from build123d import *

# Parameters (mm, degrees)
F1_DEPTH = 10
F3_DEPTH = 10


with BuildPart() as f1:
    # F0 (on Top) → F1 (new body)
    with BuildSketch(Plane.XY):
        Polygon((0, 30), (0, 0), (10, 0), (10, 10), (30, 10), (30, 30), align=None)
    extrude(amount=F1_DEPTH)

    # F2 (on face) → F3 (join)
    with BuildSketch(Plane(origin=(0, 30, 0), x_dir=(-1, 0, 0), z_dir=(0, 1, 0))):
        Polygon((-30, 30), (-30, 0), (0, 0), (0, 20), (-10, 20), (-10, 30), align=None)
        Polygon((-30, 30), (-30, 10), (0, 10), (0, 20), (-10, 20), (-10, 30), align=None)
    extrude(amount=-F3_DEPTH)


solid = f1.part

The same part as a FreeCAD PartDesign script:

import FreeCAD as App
import Part
import Sketcher
from FreeCAD import Vector
Q = App.Units.Quantity

doc = App.newDocument("Part")
body = doc.addObject("PartDesign::Body", "Body")

# Sketch on XY plane
sketch1 = body.newObject("Sketcher::SketchObject", "Sketch")
sketch1.AttachmentSupport = (doc.getObject("XY_Plane"), [""])
sketch1.MapMode = "FlatFace"
sketch1.addGeometry([
    Part.LineSegment(Vector(0, 30, 0), Vector(0, 0, 0)),  # 0
    Part.LineSegment(Vector(0, 0, 0), Vector(10, 0, 0)),  # 1
    Part.LineSegment(Vector(10, 0, 0), Vector(10, 10, 0)),  # 2
    Part.LineSegment(Vector(10, 10, 0), Vector(30, 10, 0)),  # 3
    Part.LineSegment(Vector(30, 10, 0), Vector(30, 30, 0)),  # 4
    Part.LineSegment(Vector(30, 30, 0), Vector(0, 30, 0)),  # 5
], False)
sketch1.addConstraint([
    Sketcher.Constraint("Coincident", 0, 2, 1, 1),
    Sketcher.Constraint("Coincident", 1, 2, 2, 1),
    Sketcher.Constraint("Coincident", 2, 2, 3, 1),
    Sketcher.Constraint("Coincident", 3, 2, 4, 1),
    Sketcher.Constraint("Coincident", 4, 2, 5, 1),
    Sketcher.Constraint("Coincident", 5, 2, 0, 1),
    Sketcher.Constraint("Vertical", 0),
    Sketcher.Constraint("Horizontal", 1),
    Sketcher.Constraint("Vertical", 2),
    Sketcher.Constraint("Horizontal", 3),
    Sketcher.Constraint("Vertical", 4),
    Sketcher.Constraint("Horizontal", 5),
    Sketcher.Constraint("Coincident", 0, 2, -1, 1),
    Sketcher.Constraint("Equal", 5, 0),
    Sketcher.Constraint("Equal", 1, 2),
    Sketcher.Constraint("DistanceX", 1, 1, 1, 2, Q("10 mm")),
    Sketcher.Constraint("DistanceX", 3, 1, 3, 2, Q("20 mm")),
])
pad1 = body.newObject("PartDesign::Pad", "Pad")
pad1.Profile = sketch1
pad1.Length = 10

# Sketch on XZ plane
sketch2 = body.newObject("Sketcher::SketchObject", "Sketch001")
sketch2.AttachmentSupport = (doc.getObject("XZ_Plane"), [""])
sketch2.MapMode = "FlatFace"
sketch2.AttachmentOffset = App.Placement(Vector(0, 0, -30), App.Rotation())
sketch2.addGeometry([
    Part.LineSegment(Vector(10, 30, 0), Vector(30, 30, 0)),  # 0
    Part.LineSegment(Vector(30, 30, 0), Vector(30, 0, 0)),  # 1
    Part.LineSegment(Vector(30, 0, 0), Vector(0, 0, 0)),  # 2
    Part.LineSegment(Vector(0, 0, 0), Vector(0, 20, 0)),  # 3
    Part.LineSegment(Vector(0, 20, 0), Vector(10, 20, 0)),  # 4
    Part.LineSegment(Vector(10, 20, 0), Vector(10, 30, 0)),  # 5
], False)
sketch2.addConstraint([
    Sketcher.Constraint("Coincident", 0, 2, 1, 1),
    Sketcher.Constraint("Coincident", 1, 2, 2, 1),
    Sketcher.Constraint("Coincident", 2, 2, 3, 1),
    Sketcher.Constraint("Coincident", 3, 2, 4, 1),
    Sketcher.Constraint("Coincident", 4, 2, 5, 1),
    Sketcher.Constraint("Coincident", 5, 2, 0, 1),
    Sketcher.Constraint("Horizontal", 0),
    Sketcher.Constraint("Vertical", 1),
    Sketcher.Constraint("Horizontal", 2),
    Sketcher.Constraint("Vertical", 3),
    Sketcher.Constraint("Horizontal", 4),
    Sketcher.Constraint("Vertical", 5),
    Sketcher.Constraint("Coincident", 2, 2, -1, 1),
    Sketcher.Constraint("Equal", 2, 1),
    Sketcher.Constraint("Equal", 0, 3),
    Sketcher.Constraint("DistanceX", 0, 1, 0, 2, Q("20 mm")),
    Sketcher.Constraint("DistanceX", 2, 2, 2, 1, Q("30 mm")),
])
pad2 = body.newObject("PartDesign::Pad", "Pad001")
pad2.Profile = sketch2
pad2.Length = 10

doc.recompute()
